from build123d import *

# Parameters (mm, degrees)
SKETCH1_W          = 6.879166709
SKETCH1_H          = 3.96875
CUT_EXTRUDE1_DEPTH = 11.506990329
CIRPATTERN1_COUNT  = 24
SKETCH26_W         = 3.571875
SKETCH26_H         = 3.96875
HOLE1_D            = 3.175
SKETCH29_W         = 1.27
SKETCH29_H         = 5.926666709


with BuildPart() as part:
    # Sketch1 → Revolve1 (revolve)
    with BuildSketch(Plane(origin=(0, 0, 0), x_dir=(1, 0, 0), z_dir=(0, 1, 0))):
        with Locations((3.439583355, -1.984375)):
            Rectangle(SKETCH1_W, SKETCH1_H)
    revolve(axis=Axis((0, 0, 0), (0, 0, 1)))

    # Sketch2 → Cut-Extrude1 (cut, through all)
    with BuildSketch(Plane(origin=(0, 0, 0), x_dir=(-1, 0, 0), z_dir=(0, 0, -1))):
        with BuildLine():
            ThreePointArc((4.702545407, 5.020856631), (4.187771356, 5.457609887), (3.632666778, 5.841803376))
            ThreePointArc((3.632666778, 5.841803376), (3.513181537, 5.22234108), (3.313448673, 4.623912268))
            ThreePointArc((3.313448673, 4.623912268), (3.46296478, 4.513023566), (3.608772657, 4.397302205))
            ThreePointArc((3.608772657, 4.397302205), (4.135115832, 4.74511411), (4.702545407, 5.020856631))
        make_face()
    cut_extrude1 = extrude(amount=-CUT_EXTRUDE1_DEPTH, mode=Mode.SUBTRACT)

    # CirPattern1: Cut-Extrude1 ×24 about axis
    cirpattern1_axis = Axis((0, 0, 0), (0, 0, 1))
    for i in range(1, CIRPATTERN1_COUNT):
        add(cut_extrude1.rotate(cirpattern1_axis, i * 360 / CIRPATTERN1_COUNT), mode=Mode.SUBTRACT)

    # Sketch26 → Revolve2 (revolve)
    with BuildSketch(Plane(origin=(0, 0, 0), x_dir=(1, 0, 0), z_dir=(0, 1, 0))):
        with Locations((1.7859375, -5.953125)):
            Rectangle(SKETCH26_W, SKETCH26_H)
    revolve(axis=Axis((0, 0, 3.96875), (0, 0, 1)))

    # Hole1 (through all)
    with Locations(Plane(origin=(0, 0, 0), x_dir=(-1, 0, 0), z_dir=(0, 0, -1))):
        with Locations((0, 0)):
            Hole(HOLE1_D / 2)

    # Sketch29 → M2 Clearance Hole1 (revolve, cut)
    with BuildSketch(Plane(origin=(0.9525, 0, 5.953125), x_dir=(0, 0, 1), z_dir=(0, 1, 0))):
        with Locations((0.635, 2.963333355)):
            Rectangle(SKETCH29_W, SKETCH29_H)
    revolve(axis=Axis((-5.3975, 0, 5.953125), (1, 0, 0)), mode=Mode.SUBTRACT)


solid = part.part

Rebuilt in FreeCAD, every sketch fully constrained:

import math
import FreeCAD as App
import Part
import Sketcher
from FreeCAD import Vector
Q = App.Units.Quantity

doc = App.newDocument("Part")
body = doc.addObject("PartDesign::Body", "Body")

# Sketch on XZ plane
sketch1 = body.newObject("Sketcher::SketchObject", "Sketch")
sketch1.AttachmentSupport = (doc.getObject("XZ_Plane"), [""])
sketch1.MapMode = "FlatFace"
sketch1.addGeometry([
    Part.LineSegment(Vector(0, 0, 0), Vector(0, 4, 0)),
    Part.LineSegment(Vector(0, 4, 0), Vector(6.9, 4, 0)),
    Part.LineSegment(Vector(6.9, 4, 0), Vector(6.9, 0, 0)),
    Part.LineSegment(Vector(6.9, 0, 0), Vector(0, 0, 0)),
], False)
sketch1.addConstraint([
    Sketcher.Constraint("Coincident", 0, 2, 1, 1),
    Sketcher.Constraint("Coincident", 1, 2, 2, 1),
    Sketcher.Constraint("Coincident", 2, 2, 3, 1),
    Sketcher.Constraint("Coincident", 3, 2, 0, 1),
    Sketcher.Constraint("Vertical", 0),
    Sketcher.Constraint("Horizontal", 1),
    Sketcher.Constraint("Vertical", 2),
    Sketcher.Constraint("Horizontal", 3),
    Sketcher.Constraint("Coincident", 3, 2, -1, 1),
    Sketcher.Constraint("DistanceY", 0, 1, 0, 2, Q("0.15625 in")),
    Sketcher.Constraint("DistanceX", 1, 1, 1, 2, 6.879167),
])
revolution = body.newObject("PartDesign::Revolution", "Revolution")
revolution.Profile = sketch1
revolution.ReferenceAxis = (sketch1, ["V_Axis"])
revolution.Angle = 360

# Sketch on XY plane
sketch2 = body.newObject("Sketcher::SketchObject", "Sketch001")
sketch2.AttachmentSupport = (doc.getObject("XY_Plane"), [""])
sketch2.MapMode = "FlatFace"
sketch2.addGeometry([
    Part.ArcOfCircle(Part.Circle(Vector(0, 0, 0), Vector(0, 0, 1), 6.88), math.radians(121.87), math.radians(133.12)),
    Part.ArcOfCircle(Part.Circle(Vector(1.13, 6.44, 0), Vector(0, 0, 1), 4.8), math.radians(-172.85), math.radians(-157.77)),
    Part.ArcOfCircle(Part.Circle(Vector(0, 0, 0), Vector(0, 0, 1), 5.69), math.radians(125.62), math.radians(129.38)),
    Part.ArcOfCircle(Part.Circle(Vector(-6.51, 0.58, 0), Vector(0, 0, 1), 4.8), math.radians(52.77), math.radians(67.85)),
], False)
sketch2.addConstraint([
    Sketcher.Constraint("Coincident", 0, 1, 1, 1),
    Sketcher.Constraint("Coincident", 1, 2, 2, 1),
    Sketcher.Constraint("Coincident", 2, 2, 3, 1),
    Sketcher.Constraint("Coincident", 3, 2, 0, 2),
    Sketcher.Constraint("Coincident", 0, 3, -1, 1),
    Sketcher.Constraint("Coincident", 2, 3, -1, 1),
    Sketcher.Constraint("Equal", 1, 3),
    Sketcher.Constraint("Radius", 1, 4.797712),
    Sketcher.Constraint("Radius", 2, 5.688541),
    Sketcher.Constraint("DistanceX", -1, 1, 1, 3, Q("0.0444 in")),
    Sketcher.Constraint("Radius", 0, 6.879167),
    Sketcher.Constraint("DistanceY", 3, 3, 2, 2, Q("0.1504 in")),
    Sketcher.Constraint("DistanceY", 2, 2, 0, 1, 1.444501),
    Sketcher.Constraint("DistanceY", 2, 3, 2, 2, 4.397302),
])
pocket1 = body.newObject("PartDesign::Pocket", "Pocket")
pocket1.Profile = sketch2
pocket1.Type = "ThroughAll"
pocket1.Reversed = True
doc.recompute()

polarpattern = body.newObject("PartDesign::PolarPattern", "PolarPattern")
polarpattern.Originals = [pocket1]
polarpattern.Axis = (doc.getObject("Z_Axis"), [""])
polarpattern.Angle = 360
polarpattern.Occurrences = 24
body.Tip = polarpattern

# Sketch on XZ plane
sketch3 = body.newObject("Sketcher::SketchObject", "Sketch002")
sketch3.AttachmentSupport = (doc.getObject("XZ_Plane"), [""])
sketch3.MapMode = "FlatFace"
sketch3.addGeometry([
    Part.LineSegment(Vector(0, 4, 0), Vector(0, 7.9, 0)),
    Part.LineSegment(Vector(0, 7.9, 0), Vector(3.6, 7.9, 0)),
    Part.LineSegment(Vector(3.6, 7.9, 0), Vector(3.6, 4, 0)),
    Part.LineSegment(Vector(3.6, 4, 0), Vector(0, 4, 0)),
], False)
sketch3.addConstraint([
    Sketcher.Constraint("Coincident", 0, 2, 1, 1),
    Sketcher.Constraint("Coincident", 1, 2, 2, 1),
    Sketcher.Constraint("Coincident", 2, 2, 3, 1),
    Sketcher.Constraint("Coincident", 3, 2, 0, 1),
    Sketcher.Constraint("Vertical", 0),
    Sketcher.Constraint("Horizontal", 1),
    Sketcher.Constraint("Vertical", 2),
    Sketcher.Constraint("Horizontal", 3),
    Sketcher.Constraint("PointOnObject", 0, 2, -2),
    Sketcher.Constraint("DistanceX", 1, 1, 1, 2, Q("0.140625 in")),
    Sketcher.Constraint("DistanceY", 0, 1, 0, 2, Q("0.15625 in")),
    Sketcher.Constraint("DistanceY", -1, 1, 0, 2, Q("0.3125 in")),
])
revolution2 = body.newObject("PartDesign::Revolution", "Revolution001")
revolution2.Profile = sketch3
revolution2.ReferenceAxis = (sketch3, ["V_Axis"])
revolution2.Angle = 360

# Sketch on XY plane
sketch4 = body.newObject("Sketcher::SketchObject", "Sketch003")
sketch4.AttachmentSupport = (doc.getObject("XY_Plane"), [""])
sketch4.MapMode = "FlatFace"
sketch4.addGeometry(Part.Circle(Vector(0, 0, 0), Vector(0, 0, 1), 1.6), False)
sketch4.addConstraint([
    Sketcher.Constraint("Coincident", 0, 3, -1, 1),
    Sketcher.Constraint("Diameter", 0, Q("0.125 in")),
])
doc.recompute()
hole = body.newObject("PartDesign::Hole", "Hole")
hole.Profile = sketch4
hole.ThreadType = "None"
hole.Diameter = Q("0.125 in")
hole.DepthType = "ThroughAll"
hole.Reversed = True

# Sketch on XZ plane
sketch5 = body.newObject("Sketcher::SketchObject", "Sketch004")
sketch5.AttachmentSupport = (doc.getObject("XZ_Plane"), [""])
sketch5.MapMode = "FlatFace"
sketch5.addGeometry([
    Part.LineSegment(Vector(6.9, 6, 0), Vector(1, 6, 0)),
    Part.LineSegment(Vector(1, 6, 0), Vector(1, 7.2, 0)),
    Part.LineSegment(Vector(1, 7.2, 0), Vector(6.9, 7.2, 0)),
    Part.LineSegment(Vector(6.9, 7.2, 0), Vector(6.9, 6, 0)),
], False)
sketch5.addGeometry(Part.LineSegment(Vector(1, 6, 0), Vector(6.9, 6, 0)), True)  # axis
sketch5.addConstraint([
    Sketcher.Constraint("Coincident", 0, 2, 1, 1),
    Sketcher.Constraint("Coincident", 1, 2, 2, 1),
    Sketcher.Constraint("Coincident", 2, 2, 3, 1),
    Sketcher.Constraint("Coincident", 3, 2, 0, 1),
    Sketcher.Constraint("Horizontal", 0),
    Sketcher.Constraint("Vertical", 1),
    Sketcher.Constraint("Horizontal", 2),
    Sketcher.Constraint("Vertical", 3),
    Sketcher.Constraint("Horizontal", 4),
    Sketcher.Constraint("Coincident", 4, 1, 0, 2),
    Sketcher.Constraint("Vertical", 2, 2, 4, 2),
    Sketcher.Constraint("DistanceY", 1, 1, 1, 2, Q("0.05 in")),
    Sketcher.Constraint("DistanceY", -1, 1, 0, 2, Q("0.234375 in")),
    Sketcher.Constraint("DistanceX", -1, 1, 0, 2, Q("0.0375 in")),
    Sketcher.Constraint("DistanceX", 0, 2, 0, 1, 5.926667),
])
groove = body.newObject("PartDesign::Groove", "Groove")
groove.Profile = sketch5
groove.ReferenceAxis = (sketch5, ["Axis0"])
groove.Angle = 360

doc.recompute()
